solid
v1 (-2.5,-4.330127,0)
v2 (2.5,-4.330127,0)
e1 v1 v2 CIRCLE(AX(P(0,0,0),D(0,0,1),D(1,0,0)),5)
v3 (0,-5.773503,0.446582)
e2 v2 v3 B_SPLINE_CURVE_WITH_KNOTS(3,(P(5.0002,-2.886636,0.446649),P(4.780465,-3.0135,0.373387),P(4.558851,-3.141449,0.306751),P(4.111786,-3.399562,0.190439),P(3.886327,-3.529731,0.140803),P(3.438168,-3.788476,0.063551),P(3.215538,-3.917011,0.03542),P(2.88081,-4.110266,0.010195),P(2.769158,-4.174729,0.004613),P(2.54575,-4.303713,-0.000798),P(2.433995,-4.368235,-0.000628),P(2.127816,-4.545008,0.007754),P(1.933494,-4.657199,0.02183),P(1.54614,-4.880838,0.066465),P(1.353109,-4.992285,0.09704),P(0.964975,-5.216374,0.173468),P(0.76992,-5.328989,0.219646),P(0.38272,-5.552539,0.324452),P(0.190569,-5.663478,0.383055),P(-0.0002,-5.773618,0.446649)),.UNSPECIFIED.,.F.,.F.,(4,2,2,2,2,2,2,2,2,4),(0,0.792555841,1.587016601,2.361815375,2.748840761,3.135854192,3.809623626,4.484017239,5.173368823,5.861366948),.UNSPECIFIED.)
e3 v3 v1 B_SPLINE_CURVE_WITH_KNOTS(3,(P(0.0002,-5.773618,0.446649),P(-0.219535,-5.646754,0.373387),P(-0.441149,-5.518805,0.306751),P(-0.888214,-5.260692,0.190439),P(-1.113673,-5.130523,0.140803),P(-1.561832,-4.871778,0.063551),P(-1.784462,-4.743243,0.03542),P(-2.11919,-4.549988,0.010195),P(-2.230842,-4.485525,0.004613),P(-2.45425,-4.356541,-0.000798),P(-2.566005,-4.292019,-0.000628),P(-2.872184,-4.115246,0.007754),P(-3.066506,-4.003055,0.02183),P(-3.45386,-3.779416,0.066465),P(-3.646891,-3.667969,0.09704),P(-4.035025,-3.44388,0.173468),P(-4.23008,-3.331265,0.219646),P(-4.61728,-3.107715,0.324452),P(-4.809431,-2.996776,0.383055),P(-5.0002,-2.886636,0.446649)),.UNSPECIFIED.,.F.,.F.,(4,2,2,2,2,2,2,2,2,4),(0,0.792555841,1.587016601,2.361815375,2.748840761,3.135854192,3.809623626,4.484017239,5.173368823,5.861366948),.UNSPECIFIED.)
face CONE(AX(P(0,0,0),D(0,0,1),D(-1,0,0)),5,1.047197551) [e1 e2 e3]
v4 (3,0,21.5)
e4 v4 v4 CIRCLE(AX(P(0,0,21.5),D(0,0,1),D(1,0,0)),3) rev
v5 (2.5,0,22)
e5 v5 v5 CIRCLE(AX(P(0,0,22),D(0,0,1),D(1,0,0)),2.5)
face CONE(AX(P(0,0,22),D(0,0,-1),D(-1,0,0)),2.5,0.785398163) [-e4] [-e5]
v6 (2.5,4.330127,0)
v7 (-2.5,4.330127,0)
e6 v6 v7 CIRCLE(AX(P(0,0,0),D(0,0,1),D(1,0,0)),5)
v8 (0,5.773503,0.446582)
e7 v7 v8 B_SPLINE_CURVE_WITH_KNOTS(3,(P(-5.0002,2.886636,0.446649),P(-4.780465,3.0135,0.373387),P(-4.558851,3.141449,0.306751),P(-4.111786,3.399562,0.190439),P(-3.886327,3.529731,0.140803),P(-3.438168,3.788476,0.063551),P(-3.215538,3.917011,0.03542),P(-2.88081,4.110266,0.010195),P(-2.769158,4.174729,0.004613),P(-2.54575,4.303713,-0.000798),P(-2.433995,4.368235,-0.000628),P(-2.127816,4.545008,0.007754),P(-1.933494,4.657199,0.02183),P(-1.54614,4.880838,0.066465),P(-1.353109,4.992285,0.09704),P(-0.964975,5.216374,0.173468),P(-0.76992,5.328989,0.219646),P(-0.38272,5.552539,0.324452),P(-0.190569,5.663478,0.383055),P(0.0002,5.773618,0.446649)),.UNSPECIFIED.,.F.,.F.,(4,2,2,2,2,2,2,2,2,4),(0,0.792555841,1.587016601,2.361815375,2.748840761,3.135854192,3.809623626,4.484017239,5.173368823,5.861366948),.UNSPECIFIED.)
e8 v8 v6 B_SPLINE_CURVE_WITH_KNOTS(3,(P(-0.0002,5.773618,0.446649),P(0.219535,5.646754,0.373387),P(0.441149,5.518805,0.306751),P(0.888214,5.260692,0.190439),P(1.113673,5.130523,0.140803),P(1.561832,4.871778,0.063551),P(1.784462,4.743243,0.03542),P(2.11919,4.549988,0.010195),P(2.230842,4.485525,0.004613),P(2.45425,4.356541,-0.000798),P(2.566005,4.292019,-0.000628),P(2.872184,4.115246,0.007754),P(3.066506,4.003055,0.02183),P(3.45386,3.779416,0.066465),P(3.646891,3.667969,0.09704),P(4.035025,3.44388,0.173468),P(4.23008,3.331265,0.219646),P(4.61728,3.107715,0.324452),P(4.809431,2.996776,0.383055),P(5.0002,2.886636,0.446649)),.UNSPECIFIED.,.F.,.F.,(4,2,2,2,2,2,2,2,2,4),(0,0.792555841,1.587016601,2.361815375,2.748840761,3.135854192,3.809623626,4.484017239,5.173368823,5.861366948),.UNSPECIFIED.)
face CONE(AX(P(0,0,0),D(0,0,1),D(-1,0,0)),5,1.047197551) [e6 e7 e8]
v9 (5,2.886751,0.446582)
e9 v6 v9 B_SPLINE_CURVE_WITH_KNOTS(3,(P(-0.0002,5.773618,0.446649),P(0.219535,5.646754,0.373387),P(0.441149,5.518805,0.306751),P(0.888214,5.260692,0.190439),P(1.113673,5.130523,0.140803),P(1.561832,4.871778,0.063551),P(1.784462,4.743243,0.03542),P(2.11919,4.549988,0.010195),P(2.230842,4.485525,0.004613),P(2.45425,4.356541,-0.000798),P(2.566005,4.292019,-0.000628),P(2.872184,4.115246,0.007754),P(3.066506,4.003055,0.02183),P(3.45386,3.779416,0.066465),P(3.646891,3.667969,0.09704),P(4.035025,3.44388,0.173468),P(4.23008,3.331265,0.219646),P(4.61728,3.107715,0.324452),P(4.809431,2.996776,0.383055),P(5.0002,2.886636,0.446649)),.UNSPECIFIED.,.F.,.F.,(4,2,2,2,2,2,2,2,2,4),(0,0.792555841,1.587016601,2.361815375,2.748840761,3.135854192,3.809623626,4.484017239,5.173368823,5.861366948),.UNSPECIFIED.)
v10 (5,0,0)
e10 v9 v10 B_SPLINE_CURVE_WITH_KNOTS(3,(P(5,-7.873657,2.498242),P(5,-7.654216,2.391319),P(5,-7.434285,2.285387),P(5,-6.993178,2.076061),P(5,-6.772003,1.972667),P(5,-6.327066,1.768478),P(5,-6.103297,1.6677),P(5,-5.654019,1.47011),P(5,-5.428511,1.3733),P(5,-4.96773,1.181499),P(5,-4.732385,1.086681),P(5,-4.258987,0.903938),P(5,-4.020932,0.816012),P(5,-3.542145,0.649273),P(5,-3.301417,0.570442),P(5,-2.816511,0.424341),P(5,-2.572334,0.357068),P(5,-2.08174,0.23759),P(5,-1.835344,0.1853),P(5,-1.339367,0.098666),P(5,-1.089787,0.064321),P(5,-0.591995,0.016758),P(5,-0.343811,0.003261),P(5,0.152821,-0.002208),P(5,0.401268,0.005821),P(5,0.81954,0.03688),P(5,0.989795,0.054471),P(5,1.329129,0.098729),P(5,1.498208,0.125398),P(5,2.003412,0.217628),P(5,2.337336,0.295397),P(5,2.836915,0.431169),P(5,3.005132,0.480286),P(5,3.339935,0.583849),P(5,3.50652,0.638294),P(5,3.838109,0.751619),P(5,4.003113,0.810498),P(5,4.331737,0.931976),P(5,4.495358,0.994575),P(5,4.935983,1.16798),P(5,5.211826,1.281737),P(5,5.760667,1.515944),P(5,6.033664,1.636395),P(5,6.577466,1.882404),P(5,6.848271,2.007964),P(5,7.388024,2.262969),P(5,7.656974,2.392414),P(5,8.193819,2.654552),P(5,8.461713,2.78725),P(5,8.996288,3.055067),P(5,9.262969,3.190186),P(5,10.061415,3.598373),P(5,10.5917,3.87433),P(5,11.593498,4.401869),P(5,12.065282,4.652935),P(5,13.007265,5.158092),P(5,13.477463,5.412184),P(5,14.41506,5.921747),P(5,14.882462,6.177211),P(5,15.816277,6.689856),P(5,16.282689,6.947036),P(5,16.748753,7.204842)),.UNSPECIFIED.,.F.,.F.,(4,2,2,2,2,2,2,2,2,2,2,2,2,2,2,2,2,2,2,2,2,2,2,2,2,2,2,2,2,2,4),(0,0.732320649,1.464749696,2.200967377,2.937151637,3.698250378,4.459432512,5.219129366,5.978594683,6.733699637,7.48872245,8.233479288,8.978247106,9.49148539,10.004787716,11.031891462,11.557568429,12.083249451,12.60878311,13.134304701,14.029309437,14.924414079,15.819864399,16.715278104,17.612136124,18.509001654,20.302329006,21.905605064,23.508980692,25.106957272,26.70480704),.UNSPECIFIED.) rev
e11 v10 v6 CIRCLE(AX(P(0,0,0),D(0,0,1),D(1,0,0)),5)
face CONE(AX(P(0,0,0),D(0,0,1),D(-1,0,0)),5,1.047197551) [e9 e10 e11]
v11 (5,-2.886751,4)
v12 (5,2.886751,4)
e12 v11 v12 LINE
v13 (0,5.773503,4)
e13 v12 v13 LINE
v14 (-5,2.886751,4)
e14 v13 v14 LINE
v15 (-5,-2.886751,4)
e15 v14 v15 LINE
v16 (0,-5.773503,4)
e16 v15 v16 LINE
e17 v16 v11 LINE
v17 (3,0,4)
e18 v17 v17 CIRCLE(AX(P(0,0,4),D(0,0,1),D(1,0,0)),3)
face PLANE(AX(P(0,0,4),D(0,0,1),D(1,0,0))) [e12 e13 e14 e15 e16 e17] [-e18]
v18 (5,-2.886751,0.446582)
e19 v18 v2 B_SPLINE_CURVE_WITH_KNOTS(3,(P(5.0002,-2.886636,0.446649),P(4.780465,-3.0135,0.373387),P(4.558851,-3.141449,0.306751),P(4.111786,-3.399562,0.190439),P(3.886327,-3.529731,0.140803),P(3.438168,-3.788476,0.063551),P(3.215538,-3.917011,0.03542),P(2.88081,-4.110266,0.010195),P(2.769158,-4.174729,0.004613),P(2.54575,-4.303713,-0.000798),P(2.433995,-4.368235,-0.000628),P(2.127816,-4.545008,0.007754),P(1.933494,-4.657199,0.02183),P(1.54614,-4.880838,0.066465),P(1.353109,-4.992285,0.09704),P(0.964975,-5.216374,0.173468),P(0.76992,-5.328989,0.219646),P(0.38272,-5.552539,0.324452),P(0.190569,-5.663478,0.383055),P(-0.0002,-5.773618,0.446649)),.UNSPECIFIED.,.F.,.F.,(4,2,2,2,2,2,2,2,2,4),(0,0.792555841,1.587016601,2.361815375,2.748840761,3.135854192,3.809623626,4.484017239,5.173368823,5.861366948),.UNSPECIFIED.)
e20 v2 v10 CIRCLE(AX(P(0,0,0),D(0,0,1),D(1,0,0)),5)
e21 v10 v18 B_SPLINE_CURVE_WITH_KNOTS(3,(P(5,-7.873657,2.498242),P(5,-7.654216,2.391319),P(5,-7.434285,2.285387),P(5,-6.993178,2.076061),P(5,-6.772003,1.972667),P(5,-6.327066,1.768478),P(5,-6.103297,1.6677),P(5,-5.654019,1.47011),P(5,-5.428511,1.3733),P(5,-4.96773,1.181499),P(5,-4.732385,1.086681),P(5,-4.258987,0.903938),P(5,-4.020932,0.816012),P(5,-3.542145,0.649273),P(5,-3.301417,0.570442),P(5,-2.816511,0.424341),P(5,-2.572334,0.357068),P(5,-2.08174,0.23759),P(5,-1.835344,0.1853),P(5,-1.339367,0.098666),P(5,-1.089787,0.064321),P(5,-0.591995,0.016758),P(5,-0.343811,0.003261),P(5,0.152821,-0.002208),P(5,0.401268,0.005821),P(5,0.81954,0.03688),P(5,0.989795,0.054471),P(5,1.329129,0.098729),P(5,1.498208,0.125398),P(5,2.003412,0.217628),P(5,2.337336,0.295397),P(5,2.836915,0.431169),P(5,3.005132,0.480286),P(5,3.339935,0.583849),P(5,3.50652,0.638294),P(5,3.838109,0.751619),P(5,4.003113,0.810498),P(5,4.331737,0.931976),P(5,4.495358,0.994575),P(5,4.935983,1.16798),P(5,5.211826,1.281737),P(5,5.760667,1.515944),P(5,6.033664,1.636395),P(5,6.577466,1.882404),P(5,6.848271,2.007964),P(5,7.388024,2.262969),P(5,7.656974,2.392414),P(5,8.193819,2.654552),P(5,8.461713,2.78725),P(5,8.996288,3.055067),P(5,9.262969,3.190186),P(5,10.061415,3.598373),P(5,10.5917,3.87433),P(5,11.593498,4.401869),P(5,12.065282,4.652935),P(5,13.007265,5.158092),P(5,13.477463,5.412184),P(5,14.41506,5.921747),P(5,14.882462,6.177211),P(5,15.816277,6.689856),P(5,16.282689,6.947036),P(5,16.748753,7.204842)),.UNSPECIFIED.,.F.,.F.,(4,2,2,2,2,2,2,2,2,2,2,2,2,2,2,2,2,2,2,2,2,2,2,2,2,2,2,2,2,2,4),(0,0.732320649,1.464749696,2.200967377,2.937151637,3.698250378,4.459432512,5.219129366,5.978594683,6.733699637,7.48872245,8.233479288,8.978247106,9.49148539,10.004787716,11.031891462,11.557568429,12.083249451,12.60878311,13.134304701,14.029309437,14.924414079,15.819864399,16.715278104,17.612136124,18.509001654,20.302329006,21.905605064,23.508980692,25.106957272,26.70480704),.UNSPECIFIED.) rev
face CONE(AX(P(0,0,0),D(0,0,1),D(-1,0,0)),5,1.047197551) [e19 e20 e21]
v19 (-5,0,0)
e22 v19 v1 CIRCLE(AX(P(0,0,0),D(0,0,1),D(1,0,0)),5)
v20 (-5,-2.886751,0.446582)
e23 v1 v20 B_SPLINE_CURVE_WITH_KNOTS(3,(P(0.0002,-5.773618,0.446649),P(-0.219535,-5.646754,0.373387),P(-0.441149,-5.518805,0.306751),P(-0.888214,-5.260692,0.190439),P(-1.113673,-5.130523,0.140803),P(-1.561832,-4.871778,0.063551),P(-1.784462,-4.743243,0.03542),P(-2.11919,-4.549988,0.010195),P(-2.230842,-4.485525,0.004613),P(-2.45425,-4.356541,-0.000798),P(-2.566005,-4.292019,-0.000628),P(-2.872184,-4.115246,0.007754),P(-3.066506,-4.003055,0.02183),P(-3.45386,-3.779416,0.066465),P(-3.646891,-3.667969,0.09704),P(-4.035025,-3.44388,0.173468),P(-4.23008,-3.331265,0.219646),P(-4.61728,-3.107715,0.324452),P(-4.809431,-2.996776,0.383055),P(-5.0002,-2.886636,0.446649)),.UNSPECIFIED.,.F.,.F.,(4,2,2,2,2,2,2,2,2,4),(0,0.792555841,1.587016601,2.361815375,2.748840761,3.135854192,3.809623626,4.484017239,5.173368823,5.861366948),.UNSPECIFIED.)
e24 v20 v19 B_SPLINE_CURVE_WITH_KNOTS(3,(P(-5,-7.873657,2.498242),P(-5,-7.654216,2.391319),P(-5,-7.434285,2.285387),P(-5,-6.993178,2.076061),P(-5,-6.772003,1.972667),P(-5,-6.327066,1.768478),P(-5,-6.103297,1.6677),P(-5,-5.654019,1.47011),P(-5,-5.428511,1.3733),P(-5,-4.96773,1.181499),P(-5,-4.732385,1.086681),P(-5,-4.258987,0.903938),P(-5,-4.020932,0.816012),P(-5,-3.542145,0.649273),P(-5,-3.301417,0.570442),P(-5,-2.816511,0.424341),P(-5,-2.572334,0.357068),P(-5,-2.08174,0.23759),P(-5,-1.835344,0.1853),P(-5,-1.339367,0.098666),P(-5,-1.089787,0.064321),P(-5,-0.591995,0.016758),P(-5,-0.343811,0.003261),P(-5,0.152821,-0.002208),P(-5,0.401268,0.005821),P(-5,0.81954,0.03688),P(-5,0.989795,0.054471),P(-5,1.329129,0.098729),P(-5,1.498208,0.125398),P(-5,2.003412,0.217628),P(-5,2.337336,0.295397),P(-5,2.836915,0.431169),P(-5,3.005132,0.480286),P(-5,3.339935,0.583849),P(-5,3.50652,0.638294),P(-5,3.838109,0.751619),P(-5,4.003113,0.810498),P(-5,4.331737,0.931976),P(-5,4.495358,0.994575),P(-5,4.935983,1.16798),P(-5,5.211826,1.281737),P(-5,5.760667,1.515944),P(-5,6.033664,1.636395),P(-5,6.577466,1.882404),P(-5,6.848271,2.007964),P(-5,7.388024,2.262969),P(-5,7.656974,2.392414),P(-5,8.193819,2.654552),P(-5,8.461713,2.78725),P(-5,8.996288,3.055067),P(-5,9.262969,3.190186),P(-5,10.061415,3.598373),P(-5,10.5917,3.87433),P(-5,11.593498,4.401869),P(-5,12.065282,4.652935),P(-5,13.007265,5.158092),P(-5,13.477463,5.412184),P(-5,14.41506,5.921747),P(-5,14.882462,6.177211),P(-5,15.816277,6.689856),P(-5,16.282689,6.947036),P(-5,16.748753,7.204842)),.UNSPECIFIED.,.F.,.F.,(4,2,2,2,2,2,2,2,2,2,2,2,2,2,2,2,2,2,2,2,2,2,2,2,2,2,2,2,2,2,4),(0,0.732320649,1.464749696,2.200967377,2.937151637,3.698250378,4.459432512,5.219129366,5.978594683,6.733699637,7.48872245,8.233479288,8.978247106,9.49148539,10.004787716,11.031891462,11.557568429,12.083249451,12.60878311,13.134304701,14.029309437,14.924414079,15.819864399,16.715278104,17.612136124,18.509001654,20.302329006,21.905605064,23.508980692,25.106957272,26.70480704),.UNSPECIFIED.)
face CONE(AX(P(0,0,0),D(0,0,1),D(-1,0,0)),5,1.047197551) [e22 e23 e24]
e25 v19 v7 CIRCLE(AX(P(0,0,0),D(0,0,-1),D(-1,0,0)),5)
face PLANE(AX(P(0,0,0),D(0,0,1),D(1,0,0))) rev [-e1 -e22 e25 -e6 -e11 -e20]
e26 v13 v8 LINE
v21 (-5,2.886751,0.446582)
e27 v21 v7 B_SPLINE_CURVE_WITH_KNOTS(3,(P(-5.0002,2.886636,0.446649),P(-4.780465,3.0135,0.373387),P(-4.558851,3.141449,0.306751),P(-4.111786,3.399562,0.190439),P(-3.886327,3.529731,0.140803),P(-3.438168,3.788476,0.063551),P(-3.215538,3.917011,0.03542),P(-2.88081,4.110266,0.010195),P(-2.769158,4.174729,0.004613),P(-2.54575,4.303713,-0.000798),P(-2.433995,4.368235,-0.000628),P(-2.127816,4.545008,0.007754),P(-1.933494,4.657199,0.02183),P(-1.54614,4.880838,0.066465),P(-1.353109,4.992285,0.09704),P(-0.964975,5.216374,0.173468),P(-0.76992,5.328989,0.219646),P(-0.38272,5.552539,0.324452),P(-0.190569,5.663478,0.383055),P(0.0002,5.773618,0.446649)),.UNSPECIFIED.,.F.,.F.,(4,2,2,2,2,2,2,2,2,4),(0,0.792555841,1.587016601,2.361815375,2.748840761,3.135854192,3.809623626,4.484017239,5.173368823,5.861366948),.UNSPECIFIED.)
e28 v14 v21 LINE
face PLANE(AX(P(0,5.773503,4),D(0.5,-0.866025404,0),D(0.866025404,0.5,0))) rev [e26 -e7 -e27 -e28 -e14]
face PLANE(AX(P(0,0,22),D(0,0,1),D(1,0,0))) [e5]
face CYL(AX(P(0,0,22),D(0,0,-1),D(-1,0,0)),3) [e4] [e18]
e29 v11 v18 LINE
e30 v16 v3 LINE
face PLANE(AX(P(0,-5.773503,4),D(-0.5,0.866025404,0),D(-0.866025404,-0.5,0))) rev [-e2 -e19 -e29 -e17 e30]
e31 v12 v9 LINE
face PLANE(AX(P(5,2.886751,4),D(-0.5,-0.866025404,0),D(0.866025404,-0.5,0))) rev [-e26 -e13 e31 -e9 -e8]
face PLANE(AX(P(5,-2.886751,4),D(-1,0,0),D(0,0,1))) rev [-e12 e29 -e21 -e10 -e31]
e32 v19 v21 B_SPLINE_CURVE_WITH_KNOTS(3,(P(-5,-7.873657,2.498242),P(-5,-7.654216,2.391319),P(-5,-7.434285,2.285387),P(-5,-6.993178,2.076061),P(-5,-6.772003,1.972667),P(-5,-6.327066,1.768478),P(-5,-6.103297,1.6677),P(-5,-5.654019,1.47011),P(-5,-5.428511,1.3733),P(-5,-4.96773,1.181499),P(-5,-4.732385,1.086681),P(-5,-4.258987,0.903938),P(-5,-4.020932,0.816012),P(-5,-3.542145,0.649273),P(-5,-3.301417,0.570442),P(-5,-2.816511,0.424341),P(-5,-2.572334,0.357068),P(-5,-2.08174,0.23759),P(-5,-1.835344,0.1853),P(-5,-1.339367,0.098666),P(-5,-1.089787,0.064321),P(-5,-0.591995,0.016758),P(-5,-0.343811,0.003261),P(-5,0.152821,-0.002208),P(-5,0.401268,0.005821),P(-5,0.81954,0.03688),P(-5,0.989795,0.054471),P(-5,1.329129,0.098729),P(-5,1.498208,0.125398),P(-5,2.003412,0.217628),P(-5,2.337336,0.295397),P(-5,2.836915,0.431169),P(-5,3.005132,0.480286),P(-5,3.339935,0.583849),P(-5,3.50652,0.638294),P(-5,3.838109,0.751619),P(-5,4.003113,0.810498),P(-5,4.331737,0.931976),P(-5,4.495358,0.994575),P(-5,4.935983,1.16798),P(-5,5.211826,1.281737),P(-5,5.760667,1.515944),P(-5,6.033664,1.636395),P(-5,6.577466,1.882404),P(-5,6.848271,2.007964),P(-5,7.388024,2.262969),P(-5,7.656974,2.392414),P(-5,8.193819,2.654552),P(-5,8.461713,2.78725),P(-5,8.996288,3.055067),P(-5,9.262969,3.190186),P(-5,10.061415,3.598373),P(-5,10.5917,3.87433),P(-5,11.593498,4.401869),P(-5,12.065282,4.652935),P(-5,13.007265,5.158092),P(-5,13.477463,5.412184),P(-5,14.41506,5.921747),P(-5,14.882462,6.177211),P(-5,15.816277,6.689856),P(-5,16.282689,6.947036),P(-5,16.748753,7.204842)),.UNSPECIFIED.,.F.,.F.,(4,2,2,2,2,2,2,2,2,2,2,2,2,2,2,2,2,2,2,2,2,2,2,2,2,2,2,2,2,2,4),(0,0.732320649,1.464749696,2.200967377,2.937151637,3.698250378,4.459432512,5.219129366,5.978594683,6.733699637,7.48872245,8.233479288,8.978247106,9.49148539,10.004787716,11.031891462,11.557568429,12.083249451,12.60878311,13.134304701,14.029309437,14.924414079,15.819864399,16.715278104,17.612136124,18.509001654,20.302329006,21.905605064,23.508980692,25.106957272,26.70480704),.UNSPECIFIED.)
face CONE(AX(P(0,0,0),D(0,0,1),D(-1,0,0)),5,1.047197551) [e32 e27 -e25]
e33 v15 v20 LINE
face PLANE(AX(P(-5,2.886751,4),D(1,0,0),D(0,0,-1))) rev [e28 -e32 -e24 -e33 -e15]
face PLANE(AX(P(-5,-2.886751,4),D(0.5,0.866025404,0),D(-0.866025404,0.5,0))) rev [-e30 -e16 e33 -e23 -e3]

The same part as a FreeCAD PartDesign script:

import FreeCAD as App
import Part
import Sketcher

V = App.Vector
Q = App.Units.Quantity


def edges_at(feature, points):
    """Names of the edges that pass closest to the given points."""
    edges = feature.Shape.Edges
    near = lambda p: min(range(len(edges)), key=lambda i: edges[i].distToShape(Part.Vertex(*p))[0])
    return sorted({f"Edge{near(p) + 1}" for p in points})


def faces_at(feature, points):
    """Names of the faces that lie closest to the given points."""
    faces = feature.Shape.Faces
    near = lambda p: min(range(len(faces)), key=lambda i: faces[i].distToShape(Part.Vertex(*p))[0])
    return sorted({f"Face{near(p) + 1}" for p in points})

doc = App.newDocument("Part")
body = doc.addObject("PartDesign::Body", "Body")

sketch1 = body.newObject("Sketcher::SketchObject", "Sketch")
sketch1.AttachmentSupport = (doc.getObject("XY_Plane"), [""])
sketch1.MapMode = "FlatFace"
sketch1.addGeometry(Part.LineSegment(V(0, -6, 0), V(5, -3, 0)), False)
sketch1.addGeometry(Part.LineSegment(V(5, -3, 0), V(5, 3, 0)), False)
sketch1.addGeometry(Part.LineSegment(V(5, 3, 0), V(0, 6, 0)), False)
sketch1.addGeometry(Part.LineSegment(V(0, 6, 0), V(-5, 3, 0)), False)
sketch1.addGeometry(Part.LineSegment(V(-5, 3, 0), V(-5, -3, 0)), False)
sketch1.addGeometry(Part.LineSegment(V(-5, -3, 0), V(0, -6, 0)), False)
sketch1.addConstraint(Sketcher.Constraint("Coincident", 0, 2, 1, 1))
sketch1.addConstraint(Sketcher.Constraint("Coincident", 1, 2, 2, 1))
sketch1.addConstraint(Sketcher.Constraint("Coincident", 2, 2, 3, 1))
sketch1.addConstraint(Sketcher.Constraint("Coincident", 3, 2, 4, 1))
sketch1.addConstraint(Sketcher.Constraint("Coincident", 4, 2, 5, 1))
sketch1.addConstraint(Sketcher.Constraint("Coincident", 5, 2, 0, 1))
sketch1.addConstraint(Sketcher.Constraint("Vertical", 1))
sketch1.addConstraint(Sketcher.Constraint("Vertical", 4))
sketch1.addConstraint(Sketcher.Constraint("Symmetric", 0, 2, 3, 2, -1, 1))
sketch1.addConstraint(Sketcher.Constraint("Symmetric", 2, 2, 5, 2, -1, 1))
sketch1.addConstraint(Sketcher.Constraint("PointOnObject", 2, 2, -2))
sketch1.addConstraint(Sketcher.Constraint("Parallel", 2, 5))
sketch1.addConstraint(Sketcher.Constraint("Horizontal", 1, 2, 3, 2))
sketch1.addConstraint(Sketcher.Constraint("Angle", 0, Q("30 deg")))
sketch1.addConstraint(Sketcher.Constraint("DistanceX", -1, 1, 0, 2, Q("5 mm")))
sketch1.addConstraint(Sketcher.Constraint("DistanceY", 1, 1, 1, 2, Q("5.773503 mm")))
pad1 = body.newObject("PartDesign::Pad", "Pad")
pad1.Profile = sketch1
pad1.Length = 4

sketch2 = body.newObject("Sketcher::SketchObject", "Sketch001")
sketch2.AttachmentSupport = (doc.getObject("XY_Plane"), [""])
sketch2.MapMode = "FlatFace"
sketch2.AttachmentOffset = App.Placement(V(0, 0, 4), App.Rotation())
sketch2.addGeometry(Part.Circle(V(0, 0, 0), V(0, 0, 1), 3), False)
sketch2.addConstraint(Sketcher.Constraint("Coincident", 0, 3, -1, 1))
sketch2.addConstraint(Sketcher.Constraint("Diameter", 0, Q("6 mm")))
pad2 = body.newObject("PartDesign::Pad", "Pad001")
pad2.Profile = sketch2
pad2.Length = 18
body2 = doc.addObject("PartDesign::Body", "Body001")

sketch3 = body2.newObject("Sketcher::SketchObject", "Sketch002")
sketch3.AttachmentSupport = (doc.getObject("XY_Plane001"), [""])
sketch3.MapMode = "FlatFace"
sketch3.addGeometry(Part.LineSegment(V(51, 52, 0), V(51, -52, 0)), False)
sketch3.addGeometry(Part.LineSegment(V(51, -52, 0), V(-51, -52, 0)), False)
sketch3.addGeometry(Part.LineSegment(V(-51, -52, 0), V(-51, 52, 0)), False)
sketch3.addGeometry(Part.LineSegment(V(-51, 52, 0), V(51, 52, 0)), False)
sketch3.addGeometry(Part.Circle(V(0, 0, 0), V(0, 0, 1), 5), False)
sketch3.addConstraint(Sketcher.Constraint("Coincident", 0, 2, 1, 1))
sketch3.addConstraint(Sketcher.Constraint("Coincident", 1, 2, 2, 1))
sketch3.addConstraint(Sketcher.Constraint("Coincident", 2, 2, 3, 1))
sketch3.addConstraint(Sketcher.Constraint("Coincident", 3, 2, 0, 1))
sketch3.addConstraint(Sketcher.Constraint("Vertical", 0))
sketch3.addConstraint(Sketcher.Constraint("Horizontal", 1))
sketch3.addConstraint(Sketcher.Constraint("Vertical", 2))
sketch3.addConstraint(Sketcher.Constraint("Horizontal", 3))
sketch3.addConstraint(Sketcher.Constraint("Coincident", 4, 3, -1, 1))
sketch3.addConstraint(Sketcher.Constraint("Symmetric", 0, 2, 2, 2, -1, 1))
sketch3.addConstraint(Sketcher.Constraint("Diameter", 4, Q("10 mm")))
sketch3.addConstraint(Sketcher.Constraint("DistanceY", 0, 2, 0, 1, Q("103.04 mm")))
sketch3.addConstraint(Sketcher.Constraint("DistanceX", 1, 2, 1, 1, Q("101.492 mm")))
pad3 = body2.newObject("PartDesign::Pad", "Pad002")
pad3.Profile = sketch3
pad3.Length = 24.288051
doc.recompute()

draft = body2.newObject("PartDesign::Draft", "Draft")
draft.Base = (pad3, faces_at(pad3, [
    (0, -51.52, 12.144),
    (-50.746, 0, 12.144),
    (0, 51.52, 12.144),
    (50.746, 0, 12.144),
    (5, 0, 12.144),
]))
draft.NeutralPlane = (doc.getObject("XY_Plane001"), [""])
draft.Angle = 60
draft.Reversed = False
doc.recompute()

boolean = body.newObject("PartDesign::Boolean", "Boolean")
boolean.Type = "Cut"
boolean.addObjects([body2])
doc.recompute()

chamfer = body.newObject("PartDesign::Chamfer", "Chamfer")
chamfer.Base = (boolean, edges_at(boolean, [(-3, 0, 22)]))
chamfer.Size = 0.5

doc.recompute()
